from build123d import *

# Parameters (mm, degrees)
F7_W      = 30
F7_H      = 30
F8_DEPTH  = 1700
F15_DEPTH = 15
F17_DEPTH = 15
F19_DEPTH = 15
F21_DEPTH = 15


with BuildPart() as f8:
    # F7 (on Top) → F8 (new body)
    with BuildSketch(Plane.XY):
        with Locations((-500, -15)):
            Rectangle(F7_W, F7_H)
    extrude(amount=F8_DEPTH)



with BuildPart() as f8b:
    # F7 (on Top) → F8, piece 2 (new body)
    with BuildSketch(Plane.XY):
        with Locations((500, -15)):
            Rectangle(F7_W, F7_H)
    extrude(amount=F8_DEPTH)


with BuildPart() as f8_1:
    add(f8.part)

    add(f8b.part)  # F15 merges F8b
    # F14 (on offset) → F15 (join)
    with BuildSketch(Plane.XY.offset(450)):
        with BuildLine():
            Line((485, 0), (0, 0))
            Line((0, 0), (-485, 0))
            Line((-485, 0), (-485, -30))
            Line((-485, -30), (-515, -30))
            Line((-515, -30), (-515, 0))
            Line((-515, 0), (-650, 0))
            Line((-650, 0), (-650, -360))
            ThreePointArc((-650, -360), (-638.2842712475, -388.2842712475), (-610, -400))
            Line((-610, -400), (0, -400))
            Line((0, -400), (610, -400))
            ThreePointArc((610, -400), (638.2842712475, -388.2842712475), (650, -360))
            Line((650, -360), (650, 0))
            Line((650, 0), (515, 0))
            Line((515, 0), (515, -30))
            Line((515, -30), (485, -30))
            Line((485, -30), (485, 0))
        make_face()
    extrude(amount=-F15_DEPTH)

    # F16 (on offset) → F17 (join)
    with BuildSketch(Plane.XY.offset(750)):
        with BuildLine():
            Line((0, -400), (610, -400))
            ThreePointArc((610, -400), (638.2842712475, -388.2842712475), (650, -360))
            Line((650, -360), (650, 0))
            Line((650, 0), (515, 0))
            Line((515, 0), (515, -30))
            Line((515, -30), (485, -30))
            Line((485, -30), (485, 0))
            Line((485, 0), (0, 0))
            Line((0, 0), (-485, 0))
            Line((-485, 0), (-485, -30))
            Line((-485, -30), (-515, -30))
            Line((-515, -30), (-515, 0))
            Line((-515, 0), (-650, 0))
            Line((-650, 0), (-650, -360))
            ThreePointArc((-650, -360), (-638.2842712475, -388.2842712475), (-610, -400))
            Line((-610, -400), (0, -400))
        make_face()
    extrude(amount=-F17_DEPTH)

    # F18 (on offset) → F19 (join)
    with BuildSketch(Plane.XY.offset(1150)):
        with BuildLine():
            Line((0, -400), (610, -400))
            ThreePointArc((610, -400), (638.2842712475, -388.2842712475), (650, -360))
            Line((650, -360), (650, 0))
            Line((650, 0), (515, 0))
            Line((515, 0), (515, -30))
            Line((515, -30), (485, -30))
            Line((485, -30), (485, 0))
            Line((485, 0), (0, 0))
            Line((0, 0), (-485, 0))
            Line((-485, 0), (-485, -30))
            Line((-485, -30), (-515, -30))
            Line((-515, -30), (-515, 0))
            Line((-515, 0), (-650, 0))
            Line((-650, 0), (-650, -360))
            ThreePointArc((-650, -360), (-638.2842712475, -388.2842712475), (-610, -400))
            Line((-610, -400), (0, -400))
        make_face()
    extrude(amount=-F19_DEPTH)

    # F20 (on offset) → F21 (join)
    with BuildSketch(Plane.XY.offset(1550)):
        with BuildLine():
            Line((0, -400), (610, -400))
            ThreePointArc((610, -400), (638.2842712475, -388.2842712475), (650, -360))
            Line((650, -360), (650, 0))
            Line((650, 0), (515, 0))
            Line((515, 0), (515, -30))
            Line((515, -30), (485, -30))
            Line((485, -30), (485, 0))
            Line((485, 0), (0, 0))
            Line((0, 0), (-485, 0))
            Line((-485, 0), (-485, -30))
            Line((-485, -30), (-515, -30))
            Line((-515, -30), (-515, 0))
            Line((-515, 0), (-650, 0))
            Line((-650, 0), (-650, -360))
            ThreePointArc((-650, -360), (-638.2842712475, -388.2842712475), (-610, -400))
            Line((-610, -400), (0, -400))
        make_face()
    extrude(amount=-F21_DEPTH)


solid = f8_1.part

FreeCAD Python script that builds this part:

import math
import FreeCAD as App
import Part
import Sketcher

V = App.Vector
Q = App.Units.Quantity

doc = App.newDocument("Part")
body = doc.addObject("PartDesign::Body", "Body")

sketch1 = body.newObject("Sketcher::SketchObject", "Sketch")
sketch1.AttachmentSupport = (doc.getObject("XY_Plane"), [""])
sketch1.MapMode = "FlatFace"
sketch1.addGeometry([
    Part.LineSegment(V(-515, 0, 0), V(-515, -30, 0)),
    Part.LineSegment(V(-515, -30, 0), V(-485, -30, 0)),
    Part.LineSegment(V(-485, -30, 0), V(-485, 0, 0)),
    Part.LineSegment(V(-485, 0, 0), V(-515, 0, 0)),
], False)
sketch1.addConstraint([
    Sketcher.Constraint("Coincident", 0, 2, 1, 1),
    Sketcher.Constraint("Coincident", 1, 2, 2, 1),
    Sketcher.Constraint("Coincident", 2, 2, 3, 1),
    Sketcher.Constraint("Coincident", 3, 2, 0, 1),
    Sketcher.Constraint("Vertical", 0),
    Sketcher.Constraint("Horizontal", 1),
    Sketcher.Constraint("Vertical", 2),
    Sketcher.Constraint("Horizontal", 3),
    Sketcher.Constraint("PointOnObject", 2, 2, -1),
    Sketcher.Constraint("Equal", 3, 0),
    Sketcher.Constraint("DistanceX", 1, 1, 1, 2, Q("30 mm")),
    Sketcher.Constraint("DistanceX", 0, 2, -1, 1, Q("515 mm")),
])
pad1 = body.newObject("PartDesign::Pad", "Pad")
pad1.Profile = sketch1
pad1.Length = 1700
body2 = doc.addObject("PartDesign::Body", "Body001")

sketch2 = body2.newObject("Sketcher::SketchObject", "Sketch001")
sketch2.AttachmentSupport = (doc.getObject("XY_Plane001"), [""])
sketch2.MapMode = "FlatFace"
sketch2.addGeometry([
    Part.LineSegment(V(485, 0, 0), V(485, -30, 0)),
    Part.LineSegment(V(485, -30, 0), V(515, -30, 0)),
    Part.LineSegment(V(515, -30, 0), V(515, 0, 0)),
    Part.LineSegment(V(515, 0, 0), V(485, 0, 0)),
], False)
sketch2.addConstraint([
    Sketcher.Constraint("Coincident", 0, 2, 1, 1),
    Sketcher.Constraint("Coincident", 1, 2, 2, 1),
    Sketcher.Constraint("Coincident", 2, 2, 3, 1),
    Sketcher.Constraint("Coincident", 3, 2, 0, 1),
    Sketcher.Constraint("Vertical", 0),
    Sketcher.Constraint("Horizontal", 1),
    Sketcher.Constraint("Vertical", 2),
    Sketcher.Constraint("Horizontal", 3),
    Sketcher.Constraint("PointOnObject", 2, 2, -1),
    Sketcher.Constraint("Equal", 3, 0),
    Sketcher.Constraint("DistanceX", 1, 1, 1, 2, Q("30 mm")),
    Sketcher.Constraint("DistanceX", -1, 1, 0, 2, Q("485 mm")),
])
pad2 = body2.newObject("PartDesign::Pad", "Pad001")
pad2.Profile = sketch2
pad2.Length = 1700
body.AllowCompound = True
doc.recompute()

boolean = body.newObject("PartDesign::Boolean", "Boolean")
boolean.Type = "Fuse"
boolean.addObjects([body2])

sketch3 = body.newObject("Sketcher::SketchObject", "Sketch002")
sketch3.AttachmentSupport = (doc.getObject("XY_Plane"), [""])
sketch3.MapMode = "FlatFace"
sketch3.AttachmentOffset = App.Placement(V(0, 0, 450), App.Rotation())
sketch3.addGeometry([
    Part.LineSegment(V(485, 0, 0), V(-485, 0, 0)),
    Part.LineSegment(V(-485, 0, 0), V(-485, -30, 0)),
    Part.LineSegment(V(-485, -30, 0), V(-515, -30, 0)),
    Part.LineSegment(V(-515, -30, 0), V(-515, 0, 0)),
    Part.LineSegment(V(-515, 0, 0), V(-650, 0, 0)),
    Part.LineSegment(V(-650, 0, 0), V(-650, -360, 0)),
    Part.ArcOfCircle(Part.Circle(V(-610, -360, 0), V(0, 0, 1), 40), math.radians(180), math.radians(270)),
    Part.LineSegment(V(-610, -400, 0), V(610, -400, 0)),
    Part.ArcOfCircle(Part.Circle(V(610, -360, 0), V(0, 0, 1), 40), math.radians(-90), math.radians(0)),
    Part.LineSegment(V(650, -360, 0), V(650, 0, 0)),
    Part.LineSegment(V(650, 0, 0), V(515, 0, 0)),
    Part.LineSegment(V(515, 0, 0), V(515, -30, 0)),
    Part.LineSegment(V(515, -30, 0), V(485, -30, 0)),
    Part.LineSegment(V(485, -30, 0), V(485, 0, 0)),
], False)
sketch3.addConstraint([
    Sketcher.Constraint("Coincident", 0, 2, 1, 1),
    Sketcher.Constraint("Coincident", 1, 2, 2, 1),
    Sketcher.Constraint("Coincident", 2, 2, 3, 1),
    Sketcher.Constraint("Coincident", 3, 2, 4, 1),
    Sketcher.Constraint("Coincident", 4, 2, 5, 1),
    Sketcher.Constraint("Tangent", 5, 2, 6, 1),
    Sketcher.Constraint("Tangent", 6, 2, 7, 1),
    Sketcher.Constraint("Tangent", 7, 2, 8, 1),
    Sketcher.Constraint("Tangent", 8, 2, 9, 1),
    Sketcher.Constraint("Coincident", 9, 2, 10, 1),
    Sketcher.Constraint("Coincident", 10, 2, 11, 1),
    Sketcher.Constraint("Coincident", 11, 2, 12, 1),
    Sketcher.Constraint("Coincident", 12, 2, 13, 1),
    Sketcher.Constraint("Coincident", 13, 2, 0, 1),
    Sketcher.Constraint("Horizontal", 0),
    Sketcher.Constraint("Vertical", 1),
    Sketcher.Constraint("Horizontal", 2),
    Sketcher.Constraint("Vertical", 3),
    Sketcher.Constraint("Horizontal", 4),
    Sketcher.Constraint("Vertical", 5),
    Sketcher.Constraint("Horizontal", 7),
    Sketcher.Constraint("Vertical", 9),
    Sketcher.Constraint("Horizontal", 10),
    Sketcher.Constraint("Vertical", 11),
    Sketcher.Constraint("Horizontal", 12),
    Sketcher.Constraint("Vertical", 13),
    Sketcher.Constraint("Equal", 6, 8),
    Sketcher.Constraint("Symmetric", 4, 2, 9, 2, -1, 1),
    Sketcher.Constraint("Symmetric", 0, 2, 13, 2, -1, 1),
    Sketcher.Constraint("Symmetric", 3, 2, 10, 2, -2),
    Sketcher.Constraint("Horizontal", 2, 2, 11, 2),
    Sketcher.Constraint("Equal", 12, 1),
    Sketcher.Constraint("Radius", 6, Q("40 mm")),
    Sketcher.Constraint("DistanceX", 0, 2, 0, 1, Q("970 mm")),
    Sketcher.Constraint("DistanceX", 2, 2, 2, 1, Q("30 mm")),
    Sketcher.Constraint("DistanceX", 4, 2, 4, 1, Q("135 mm")),
    Sketcher.Constraint("DistanceY", 5, 2, 5, 1, Q("360 mm")),
])
pad3 = body.newObject("PartDesign::Pad", "Pad002")
pad3.Profile = sketch3
pad3.Length = 15
pad3.Reversed = True

sketch4 = body.newObject("Sketcher::SketchObject", "Sketch003")
sketch4.AttachmentSupport = (doc.getObject("XY_Plane"), [""])
sketch4.MapMode = "FlatFace"
sketch4.AttachmentOffset = App.Placement(V(0, 0, 750), App.Rotation())
sketch4.addGeometry([
    Part.ArcOfCircle(Part.Circle(V(610, -360, 0), V(0, 0, 1), 40), math.radians(-90), math.radians(0)),
    Part.LineSegment(V(650, -360, 0), V(650, 0, 0)),
    Part.LineSegment(V(650, 0, 0), V(515, 0, 0)),
    Part.LineSegment(V(515, 0, 0), V(515, -30, 0)),
    Part.LineSegment(V(515, -30, 0), V(485, -30, 0)),
    Part.LineSegment(V(485, -30, 0), V(485, 0, 0)),
    Part.LineSegment(V(485, 0, 0), V(-485, 0, 0)),
    Part.LineSegment(V(-485, 0, 0), V(-485, -30, 0)),
    Part.LineSegment(V(-485, -30, 0), V(-515, -30, 0)),
    Part.LineSegment(V(-515, -30, 0), V(-515, 0, 0)),
    Part.LineSegment(V(-515, 0, 0), V(-650, 0, 0)),
    Part.LineSegment(V(-650, 0, 0), V(-650, -360, 0)),
    Part.ArcOfCircle(Part.Circle(V(-610, -360, 0), V(0, 0, 1), 40), math.radians(180), math.radians(270)),
    Part.LineSegment(V(-610, -400, 0), V(610, -400, 0)),
], False)
sketch4.addConstraint([
    Sketcher.Constraint("Tangent", 0, 2, 1, 1),
    Sketcher.Constraint("Coincident", 1, 2, 2, 1),
    Sketcher.Constraint("Coincident", 2, 2, 3, 1),
    Sketcher.Constraint("Coincident", 3, 2, 4, 1),
    Sketcher.Constraint("Coincident", 4, 2, 5, 1),
    Sketcher.Constraint("Coincident", 5, 2, 6, 1),
    Sketcher.Constraint("Coincident", 6, 2, 7, 1),
    Sketcher.Constraint("Coincident", 7, 2, 8, 1),
    Sketcher.Constraint("Coincident", 8, 2, 9, 1),
    Sketcher.Constraint("Coincident", 9, 2, 10, 1),
    Sketcher.Constraint("Coincident", 10, 2, 11, 1),
    Sketcher.Constraint("Tangent", 11, 2, 12, 1),
    Sketcher.Constraint("Tangent", 12, 2, 13, 1),
    Sketcher.Constraint("Tangent", 13, 2, 0, 1),
    Sketcher.Constraint("Vertical", 1),
    Sketcher.Constraint("Horizontal", 2),
    Sketcher.Constraint("Vertical", 3),
    Sketcher.Constraint("Horizontal", 4),
    Sketcher.Constraint("Vertical", 5),
    Sketcher.Constraint("Horizontal", 6),
    Sketcher.Constraint("Vertical", 7),
    Sketcher.Constraint("Horizontal", 8),
    Sketcher.Constraint("Vertical", 9),
    Sketcher.Constraint("Horizontal", 10),
    Sketcher.Constraint("Vertical", 11),
    Sketcher.Constraint("Horizontal", 13),
    Sketcher.Constraint("Equal", 0, 12),
    Sketcher.Constraint("Symmetric", 5, 2, 6, 2, -1, 1),
    Sketcher.Constraint("Symmetric", 2, 2, 9, 2, -1, 1),
    Sketcher.Constraint("Symmetric", 1, 2, 10, 2, -2),
    Sketcher.Constraint("Horizontal", 4, 2, 7, 2),
    Sketcher.Constraint("Equal", 8, 3),
    Sketcher.Constraint("Radius", 0, Q("40 mm")),
    Sketcher.Constraint("DistanceX", 2, 2, 2, 1, Q("135 mm")),
    Sketcher.Constraint("DistanceX", 4, 2, 4, 1, Q("30 mm")),
    Sketcher.Constraint("DistanceX", 6, 2, 6, 1, Q("970 mm")),
    Sketcher.Constraint("DistanceY", 1, 1, 1, 2, Q("360 mm")),
])
pad4 = body.newObject("PartDesign::Pad", "Pad003")
pad4.Profile = sketch4
pad4.Length = 15
pad4.Reversed = True

sketch5 = body.newObject("Sketcher::SketchObject", "Sketch004")
sketch5.AttachmentSupport = (doc.getObject("XY_Plane"), [""])
sketch5.MapMode = "FlatFace"
sketch5.AttachmentOffset = App.Placement(V(0, 0, 1150), App.Rotation())
sketch5.addGeometry([
    Part.ArcOfCircle(Part.Circle(V(610, -360, 0), V(0, 0, 1), 40), math.radians(-90), math.radians(0)),
    Part.LineSegment(V(650, -360, 0), V(650, 0, 0)),
    Part.LineSegment(V(650, 0, 0), V(515, 0, 0)),
    Part.LineSegment(V(515, 0, 0), V(515, -30, 0)),
    Part.LineSegment(V(515, -30, 0), V(485, -30, 0)),
    Part.LineSegment(V(485, -30, 0), V(485, 0, 0)),
    Part.LineSegment(V(485, 0, 0), V(-485, 0, 0)),
    Part.LineSegment(V(-485, 0, 0), V(-485, -30, 0)),
    Part.LineSegment(V(-485, -30, 0), V(-515, -30, 0)),
    Part.LineSegment(V(-515, -30, 0), V(-515, 0, 0)),
    Part.LineSegment(V(-515, 0, 0), V(-650, 0, 0)),
    Part.LineSegment(V(-650, 0, 0), V(-650, -360, 0)),
    Part.ArcOfCircle(Part.Circle(V(-610, -360, 0), V(0, 0, 1), 40), math.radians(180), math.radians(270)),
    Part.LineSegment(V(-610, -400, 0), V(610, -400, 0)),
], False)
sketch5.addConstraint([
    Sketcher.Constraint("Tangent", 0, 2, 1, 1),
    Sketcher.Constraint("Coincident", 1, 2, 2, 1),
    Sketcher.Constraint("Coincident", 2, 2, 3, 1),
    Sketcher.Constraint("Coincident", 3, 2, 4, 1),
    Sketcher.Constraint("Coincident", 4, 2, 5, 1),
    Sketcher.Constraint("Coincident", 5, 2, 6, 1),
    Sketcher.Constraint("Coincident", 6, 2, 7, 1),
    Sketcher.Constraint("Coincident", 7, 2, 8, 1),
    Sketcher.Constraint("Coincident", 8, 2, 9, 1),
    Sketcher.Constraint("Coincident", 9, 2, 10, 1),
    Sketcher.Constraint("Coincident", 10, 2, 11, 1),
    Sketcher.Constraint("Tangent", 11, 2, 12, 1),
    Sketcher.Constraint("Tangent", 12, 2, 13, 1),
    Sketcher.Constraint("Tangent", 13, 2, 0, 1),
    Sketcher.Constraint("Vertical", 1),
    Sketcher.Constraint("Horizontal", 2),
    Sketcher.Constraint("Vertical", 3),
    Sketcher.Constraint("Horizontal", 4),
    Sketcher.Constraint("Vertical", 5),
    Sketcher.Constraint("Horizontal", 6),
    Sketcher.Constraint("Vertical", 7),
    Sketcher.Constraint("Horizontal", 8),
    Sketcher.Constraint("Vertical", 9),
    Sketcher.Constraint("Horizontal", 10),
    Sketcher.Constraint("Vertical", 11),
    Sketcher.Constraint("Horizontal", 13),
    Sketcher.Constraint("Equal", 0, 12),
    Sketcher.Constraint("Symmetric", 5, 2, 6, 2, -1, 1),
    Sketcher.Constraint("Symmetric", 2, 2, 9, 2, -1, 1),
    Sketcher.Constraint("Symmetric", 1, 2, 10, 2, -2),
    Sketcher.Constraint("Horizontal", 4, 2, 7, 2),
    Sketcher.Constraint("Equal", 8, 3),
    Sketcher.Constraint("Radius", 0, Q("40 mm")),
    Sketcher.Constraint("DistanceX", 2, 2, 2, 1, Q("135 mm")),
    Sketcher.Constraint("DistanceX", 4, 2, 4, 1, Q("30 mm")),
    Sketcher.Constraint("DistanceX", 6, 2, 6, 1, Q("970 mm")),
    Sketcher.Constraint("DistanceY", 1, 1, 1, 2, Q("360 mm")),
])
pad5 = body.newObject("PartDesign::Pad", "Pad004")
pad5.Profile = sketch5
pad5.Length = 15
pad5.Reversed = True

sketch6 = body.newObject("Sketcher::SketchObject", "Sketch005")
sketch6.AttachmentSupport = (doc.getObject("XY_Plane"), [""])
sketch6.MapMode = "FlatFace"
sketch6.AttachmentOffset = App.Placement(V(0, 0, 1550), App.Rotation())
sketch6.addGeometry([
    Part.ArcOfCircle(Part.Circle(V(610, -360, 0), V(0, 0, 1), 40), math.radians(-90), math.radians(0)),
    Part.LineSegment(V(650, -360, 0), V(650, 0, 0)),
    Part.LineSegment(V(650, 0, 0), V(515, 0, 0)),
    Part.LineSegment(V(515, 0, 0), V(515, -30, 0)),
    Part.LineSegment(V(515, -30, 0), V(485, -30, 0)),
    Part.LineSegment(V(485, -30, 0), V(485, 0, 0)),
    Part.LineSegment(V(485, 0, 0), V(-485, 0, 0)),
    Part.LineSegment(V(-485, 0, 0), V(-485, -30, 0)),
    Part.LineSegment(V(-485, -30, 0), V(-515, -30, 0)),
    Part.LineSegment(V(-515, -30, 0), V(-515, 0, 0)),
    Part.LineSegment(V(-515, 0, 0), V(-650, 0, 0)),
    Part.LineSegment(V(-650, 0, 0), V(-650, -360, 0)),
    Part.ArcOfCircle(Part.Circle(V(-610, -360, 0), V(0, 0, 1), 40), math.radians(180), math.radians(270)),
    Part.LineSegment(V(-610, -400, 0), V(610, -400, 0)),
], False)
sketch6.addConstraint([
    Sketcher.Constraint("Tangent", 0, 2, 1, 1),
    Sketcher.Constraint("Coincident", 1, 2, 2, 1),
    Sketcher.Constraint("Coincident", 2, 2, 3, 1),
    Sketcher.Constraint("Coincident", 3, 2, 4, 1),
    Sketcher.Constraint("Coincident", 4, 2, 5, 1),
    Sketcher.Constraint("Coincident", 5, 2, 6, 1),
    Sketcher.Constraint("Coincident", 6, 2, 7, 1),
    Sketcher.Constraint("Coincident", 7, 2, 8, 1),
    Sketcher.Constraint("Coincident", 8, 2, 9, 1),
    Sketcher.Constraint("Coincident", 9, 2, 10, 1),
    Sketcher.Constraint("Coincident", 10, 2, 11, 1),
    Sketcher.Constraint("Tangent", 11, 2, 12, 1),
    Sketcher.Constraint("Tangent", 12, 2, 13, 1),
    Sketcher.Constraint("Tangent", 13, 2, 0, 1),
    Sketcher.Constraint("Vertical", 1),
    Sketcher.Constraint("Horizontal", 2),
    Sketcher.Constraint("Vertical", 3),
    Sketcher.Constraint("Horizontal", 4),
    Sketcher.Constraint("Vertical", 5),
    Sketcher.Constraint("Horizontal", 6),
    Sketcher.Constraint("Vertical", 7),
    Sketcher.Constraint("Horizontal", 8),
    Sketcher.Constraint("Vertical", 9),
    Sketcher.Constraint("Horizontal", 10),
    Sketcher.Constraint("Vertical", 11),
    Sketcher.Constraint("Horizontal", 13),
    Sketcher.Constraint("Equal", 0, 12),
    Sketcher.Constraint("Symmetric", 5, 2, 6, 2, -1, 1),
    Sketcher.Constraint("Symmetric", 2, 2, 9, 2, -1, 1),
    Sketcher.Constraint("Symmetric", 1, 2, 10, 2, -2),
    Sketcher.Constraint("Horizontal", 4, 2, 7, 2),
    Sketcher.Constraint("Equal", 8, 3),
    Sketcher.Constraint("Radius", 0, Q("40 mm")),
    Sketcher.Constraint("DistanceX", 2, 2, 2, 1, Q("135 mm")),
    Sketcher.Constraint("DistanceX", 4, 2, 4, 1, Q("30 mm")),
    Sketcher.Constraint("DistanceX", 6, 2, 6, 1, Q("970 mm")),
    Sketcher.Constraint("DistanceY", 1, 1, 1, 2, Q("360 mm")),
])
pad6 = body.newObject("PartDesign::Pad", "Pad005")
pad6.Profile = sketch6
pad6.Length = 15
pad6.Reversed = True

doc.recompute()
